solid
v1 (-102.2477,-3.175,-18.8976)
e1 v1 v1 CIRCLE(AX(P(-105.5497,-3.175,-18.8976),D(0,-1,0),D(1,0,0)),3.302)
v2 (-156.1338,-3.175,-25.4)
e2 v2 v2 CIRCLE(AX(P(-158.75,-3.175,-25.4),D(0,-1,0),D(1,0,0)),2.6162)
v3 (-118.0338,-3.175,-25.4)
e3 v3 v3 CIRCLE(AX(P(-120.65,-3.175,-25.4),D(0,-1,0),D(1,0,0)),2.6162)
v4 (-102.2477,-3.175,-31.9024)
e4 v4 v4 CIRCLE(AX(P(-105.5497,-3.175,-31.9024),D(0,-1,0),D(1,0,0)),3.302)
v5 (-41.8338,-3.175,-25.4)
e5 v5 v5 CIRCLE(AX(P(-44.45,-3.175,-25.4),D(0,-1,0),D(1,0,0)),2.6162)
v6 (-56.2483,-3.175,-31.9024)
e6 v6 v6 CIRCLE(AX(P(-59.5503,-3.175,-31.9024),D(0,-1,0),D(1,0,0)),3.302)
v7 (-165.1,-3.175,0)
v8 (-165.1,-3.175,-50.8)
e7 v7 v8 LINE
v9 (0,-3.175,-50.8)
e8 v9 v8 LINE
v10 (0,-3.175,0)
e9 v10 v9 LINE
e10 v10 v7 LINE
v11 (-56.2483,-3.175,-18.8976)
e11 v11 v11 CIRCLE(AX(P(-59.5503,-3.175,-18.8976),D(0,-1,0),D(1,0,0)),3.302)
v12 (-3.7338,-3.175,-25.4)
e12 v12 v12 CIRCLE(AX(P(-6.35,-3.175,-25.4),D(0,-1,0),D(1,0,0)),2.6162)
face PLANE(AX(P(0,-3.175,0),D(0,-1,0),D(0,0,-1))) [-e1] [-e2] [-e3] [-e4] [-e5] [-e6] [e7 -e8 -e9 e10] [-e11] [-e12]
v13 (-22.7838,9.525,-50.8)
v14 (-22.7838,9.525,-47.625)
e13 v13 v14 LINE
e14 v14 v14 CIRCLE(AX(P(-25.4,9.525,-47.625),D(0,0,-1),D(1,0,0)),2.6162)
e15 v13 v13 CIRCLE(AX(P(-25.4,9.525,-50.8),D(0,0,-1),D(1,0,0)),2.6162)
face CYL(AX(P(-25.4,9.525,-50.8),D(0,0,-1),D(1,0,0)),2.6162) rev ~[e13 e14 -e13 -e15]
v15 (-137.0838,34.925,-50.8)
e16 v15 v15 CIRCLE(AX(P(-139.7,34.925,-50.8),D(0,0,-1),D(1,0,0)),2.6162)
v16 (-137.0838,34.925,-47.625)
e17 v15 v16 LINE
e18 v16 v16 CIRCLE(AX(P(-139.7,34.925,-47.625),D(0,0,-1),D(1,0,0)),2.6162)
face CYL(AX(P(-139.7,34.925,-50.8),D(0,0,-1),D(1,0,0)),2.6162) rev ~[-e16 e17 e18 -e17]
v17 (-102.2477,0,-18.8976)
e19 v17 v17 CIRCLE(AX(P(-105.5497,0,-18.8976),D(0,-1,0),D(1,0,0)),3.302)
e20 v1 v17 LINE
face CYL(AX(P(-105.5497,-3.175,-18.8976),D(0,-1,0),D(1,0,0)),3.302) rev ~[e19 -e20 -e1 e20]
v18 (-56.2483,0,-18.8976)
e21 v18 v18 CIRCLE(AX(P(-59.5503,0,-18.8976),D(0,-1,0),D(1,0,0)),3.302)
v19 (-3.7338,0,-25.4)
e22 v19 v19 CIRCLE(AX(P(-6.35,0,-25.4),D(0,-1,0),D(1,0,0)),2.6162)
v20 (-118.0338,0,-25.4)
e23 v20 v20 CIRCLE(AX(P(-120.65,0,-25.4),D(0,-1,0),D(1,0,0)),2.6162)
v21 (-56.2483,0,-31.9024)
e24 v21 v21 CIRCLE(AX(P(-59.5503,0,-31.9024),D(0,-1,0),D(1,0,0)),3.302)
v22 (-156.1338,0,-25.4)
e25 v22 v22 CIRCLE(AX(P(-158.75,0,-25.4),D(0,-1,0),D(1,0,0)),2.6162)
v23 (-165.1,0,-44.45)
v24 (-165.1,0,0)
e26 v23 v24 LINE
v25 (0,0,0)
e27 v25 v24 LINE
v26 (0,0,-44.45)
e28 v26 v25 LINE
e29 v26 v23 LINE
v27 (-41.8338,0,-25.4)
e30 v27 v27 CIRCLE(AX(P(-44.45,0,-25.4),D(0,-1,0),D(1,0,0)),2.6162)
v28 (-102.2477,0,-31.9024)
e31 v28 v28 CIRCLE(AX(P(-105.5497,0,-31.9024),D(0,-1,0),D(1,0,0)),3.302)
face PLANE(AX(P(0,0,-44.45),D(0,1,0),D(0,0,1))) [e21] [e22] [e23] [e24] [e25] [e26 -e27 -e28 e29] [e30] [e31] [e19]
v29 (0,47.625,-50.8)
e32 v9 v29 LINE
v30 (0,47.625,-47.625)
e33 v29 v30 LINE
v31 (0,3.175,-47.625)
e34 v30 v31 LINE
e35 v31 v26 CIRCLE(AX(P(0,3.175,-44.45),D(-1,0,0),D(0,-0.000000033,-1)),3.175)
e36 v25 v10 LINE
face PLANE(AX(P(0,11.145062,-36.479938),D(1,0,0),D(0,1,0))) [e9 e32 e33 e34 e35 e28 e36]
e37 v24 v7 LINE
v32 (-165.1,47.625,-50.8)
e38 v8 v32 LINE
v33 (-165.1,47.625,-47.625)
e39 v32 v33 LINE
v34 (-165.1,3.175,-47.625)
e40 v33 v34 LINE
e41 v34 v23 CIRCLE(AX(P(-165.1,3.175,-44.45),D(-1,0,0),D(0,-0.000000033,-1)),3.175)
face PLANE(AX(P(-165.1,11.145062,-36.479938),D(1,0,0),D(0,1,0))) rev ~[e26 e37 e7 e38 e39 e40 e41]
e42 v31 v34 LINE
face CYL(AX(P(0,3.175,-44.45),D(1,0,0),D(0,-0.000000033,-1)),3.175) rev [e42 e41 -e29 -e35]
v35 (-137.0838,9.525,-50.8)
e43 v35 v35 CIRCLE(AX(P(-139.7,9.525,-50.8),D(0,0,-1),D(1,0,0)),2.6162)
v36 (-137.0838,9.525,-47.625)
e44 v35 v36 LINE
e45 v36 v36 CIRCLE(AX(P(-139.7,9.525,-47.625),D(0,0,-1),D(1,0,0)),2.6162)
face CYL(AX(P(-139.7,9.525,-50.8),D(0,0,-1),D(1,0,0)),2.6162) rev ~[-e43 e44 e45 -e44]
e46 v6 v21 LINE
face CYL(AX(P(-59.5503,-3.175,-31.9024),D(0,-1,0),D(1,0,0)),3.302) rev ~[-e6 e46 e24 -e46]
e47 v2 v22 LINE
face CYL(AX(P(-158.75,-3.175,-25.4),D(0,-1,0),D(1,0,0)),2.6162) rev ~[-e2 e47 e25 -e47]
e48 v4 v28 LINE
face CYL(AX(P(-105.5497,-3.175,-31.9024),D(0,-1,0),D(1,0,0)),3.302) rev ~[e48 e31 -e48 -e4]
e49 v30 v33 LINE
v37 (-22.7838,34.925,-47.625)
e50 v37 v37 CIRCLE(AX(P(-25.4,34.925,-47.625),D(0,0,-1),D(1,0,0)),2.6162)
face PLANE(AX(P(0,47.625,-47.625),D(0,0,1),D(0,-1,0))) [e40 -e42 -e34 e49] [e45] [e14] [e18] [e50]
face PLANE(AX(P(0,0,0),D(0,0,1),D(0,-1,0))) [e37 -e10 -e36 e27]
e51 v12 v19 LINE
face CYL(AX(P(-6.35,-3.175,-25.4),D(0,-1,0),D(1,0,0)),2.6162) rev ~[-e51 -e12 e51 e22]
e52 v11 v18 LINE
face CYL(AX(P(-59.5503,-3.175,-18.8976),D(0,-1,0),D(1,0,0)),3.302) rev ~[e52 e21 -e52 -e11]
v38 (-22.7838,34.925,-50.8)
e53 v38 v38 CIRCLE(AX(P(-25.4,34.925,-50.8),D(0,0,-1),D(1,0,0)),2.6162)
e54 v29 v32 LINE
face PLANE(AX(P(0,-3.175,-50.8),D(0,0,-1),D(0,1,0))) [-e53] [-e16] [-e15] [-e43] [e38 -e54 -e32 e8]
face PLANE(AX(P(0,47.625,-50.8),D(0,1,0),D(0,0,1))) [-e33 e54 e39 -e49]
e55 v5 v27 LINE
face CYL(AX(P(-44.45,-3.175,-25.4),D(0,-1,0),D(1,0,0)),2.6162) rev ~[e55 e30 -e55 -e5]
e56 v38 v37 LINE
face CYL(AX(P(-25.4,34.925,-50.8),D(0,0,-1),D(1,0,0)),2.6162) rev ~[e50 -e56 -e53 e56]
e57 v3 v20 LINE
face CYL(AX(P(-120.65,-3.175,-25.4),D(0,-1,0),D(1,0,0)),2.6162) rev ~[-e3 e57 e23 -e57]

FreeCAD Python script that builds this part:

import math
import FreeCAD as App
import Part
import Sketcher
from FreeCAD import Vector
Q = App.Units.Quantity

doc = App.newDocument("Part")
params = doc.addObject("Spreadsheet::Sheet", "Params")
for row, (alias, value) in enumerate([
    ("sketch1_width", "2 in"),
    ("sketch1_radius", "0.125 in"),
    ("sketch1_width2", "1.75 in"),
    ("pad1_length", "6.5 in"),
    ("sketch2_diameter", "0.26 in"),
    ("sketch2_diameter2", "0.206 in"),
    ("sketch3_diameter", "0.206 in"),
    ("pocket2_length", "1 in"),
], start=1):
    params.set(f"A{row}", alias)
    params.set(f"B{row}", "=" + value)
    params.setAlias(f"B{row}", alias)

body = doc.addObject("PartDesign::Body", "Body")

# Sketch on YZ plane
sketch1 = body.newObject("Sketcher::SketchObject", "Sketch")
sketch1.AttachmentSupport = (doc.getObject("YZ_Plane"), [""])
sketch1.MapMode = "FlatFace"
sketch1.addGeometry([
    Part.LineSegment(Vector(0, -44.45, 0), Vector(0, 0, 0)),  # 0
    Part.LineSegment(Vector(0, 0, 0), Vector(-3.175, 0, 0)),  # 1
    Part.LineSegment(Vector(-3.175, 0, 0), Vector(-3.175, -50.8, 0)),  # 2
    Part.LineSegment(Vector(-3.175, -50.8, 0), Vector(47.625, -50.8, 0)),  # 3
    Part.LineSegment(Vector(47.625, -50.8, 0), Vector(47.625, -47.625, 0)),  # 4
    Part.LineSegment(Vector(47.625, -47.625, 0), Vector(3.175, -47.625, 0)),  # 5
    Part.ArcOfCircle(Part.Circle(Vector(3.175, -44.45, 0), Vector(0, 0, 1), 3.175), math.radians(-179.999998), math.radians(-90.000002)),  # 6
], False)
sketch1.addConstraint([
    Sketcher.Constraint("Coincident", 0, 2, 1, 1),
    Sketcher.Constraint("Coincident", 1, 2, 2, 1),
    Sketcher.Constraint("Coincident", 2, 2, 3, 1),
    Sketcher.Constraint("Coincident", 3, 2, 4, 1),
    Sketcher.Constraint("Coincident", 4, 2, 5, 1),
    Sketcher.Constraint("Tangent", 5, 2, 6, 2),
    Sketcher.Constraint("Tangent", 6, 1, 0, 1),
    Sketcher.Constraint("Vertical", 0),
    Sketcher.Constraint("Horizontal", 1),
    Sketcher.Constraint("Vertical", 2),
    Sketcher.Constraint("Horizontal", 3),
    Sketcher.Constraint("Vertical", 4),
    Sketcher.Constraint("Horizontal", 5),
    Sketcher.Constraint("Coincident", 0, 2, -1, 1),
    Sketcher.Constraint("Equal", 5, 0),
    Sketcher.Constraint("Equal", 3, 2),
    Sketcher.Constraint("DistanceX", 3, 1, 3, 2, Q("2 in")),
    Sketcher.Constraint("Radius", 6, Q("0.125 in")),
    Sketcher.Constraint("DistanceX", 5, 2, 5, 1, Q("1.75 in")),
])
sketch1.setExpression("Constraints[16]", "Params.sketch1_width")
sketch1.setExpression("Constraints[17]", "Params.sketch1_radius")
sketch1.setExpression("Constraints[18]", "Params.sketch1_width2")
pad1 = body.newObject("PartDesign::Pad", "Pad")
pad1.Profile = sketch1
pad1.setExpression("Length", "Params.pad1_length")
pad1.Reversed = True

# Sketch on XZ plane
sketch2 = body.newObject("Sketcher::SketchObject", "Sketch001")
sketch2.AttachmentSupport = (doc.getObject("XZ_Plane"), [""])
sketch2.MapMode = "FlatFace"
sketch2.AttachmentOffset = App.Placement(Vector(0, 0, 0.125 * 25.4), App.Rotation())
sketch2.addGeometry([
    Part.Circle(Vector(-158.75, -25.4, 0), Vector(0, 0, 1), 2.6162),  # 0
    Part.Circle(Vector(-120.65, -25.4, 0), Vector(0, 0, 1), 2.6162),  # 1
    Part.Circle(Vector(-44.45, -25.4, 0), Vector(0, 0, 1), 2.6162),  # 2
    Part.Circle(Vector(-6.35, -25.4, 0), Vector(0, 0, 1), 2.6162),  # 3
    Part.Circle(Vector(-59.5503, -31.9024, 0), Vector(0, 0, 1), 3.302),  # 4
    Part.Circle(Vector(-105.5497, -31.9024, 0), Vector(0, 0, 1), 3.302),  # 5
    Part.Circle(Vector(-59.5503, -18.8976, 0), Vector(0, 0, 1), 3.302),  # 6
    Part.Circle(Vector(-105.5497, -18.8976, 0), Vector(0, 0, 1), 3.302),  # 7
], False)
sketch2.addConstraint([
    Sketcher.Constraint("Equal", 0, 1),
    Sketcher.Constraint("Equal", 1, 2),
    Sketcher.Constraint("Equal", 2, 3),
    Sketcher.Constraint("Equal", 4, 5),
    Sketcher.Constraint("Equal", 5, 6),
    Sketcher.Constraint("Equal", 6, 7),
    Sketcher.Constraint("Horizontal", 0, 3, 1, 3),
    Sketcher.Constraint("Horizontal", 1, 3, 2, 3),
    Sketcher.Constraint("Horizontal", 2, 3, 3, 3),
    Sketcher.Constraint("Horizontal", 4, 3, 5, 3),
    Sketcher.Constraint("Horizontal", 6, 3, 7, 3),
    Sketcher.Constraint("Vertical", 4, 3, 6, 3),
    Sketcher.Constraint("Vertical", 5, 3, 7, 3),
    Sketcher.Constraint("Diameter", 4, Q("0.26 in")),
    Sketcher.Constraint("Diameter", 0, Q("0.206 in")),
    Sketcher.Constraint("DistanceY", 0, 3, -1, 1, Q("1 in")),
    Sketcher.Constraint("DistanceX", 1, 3, 2, 3, Q("3 in")),
    Sketcher.Constraint("DistanceX", 0, 3, 3, 3, Q("6 in")),
    Sketcher.Constraint("DistanceX", 0, 3, 1, 3, Q("1.5 in")),
    Sketcher.Constraint("DistanceX", 0, 3, -1, 1, Q("6.25 in")),
    Sketcher.Constraint("DistanceY", 4, 3, -1, 1, Q("1.256 in")),
    Sketcher.Constraint("DistanceY", 6, 3, -1, 1, Q("0.744 in")),
    Sketcher.Constraint("DistanceX", 5, 3, 4, 3, Q("1.811 in")),
    Sketcher.Constraint("DistanceX", 4, 3, -1, 1, Q("2.3445 in")),
])
sketch2.setExpression("Constraints[13]", "Params.sketch2_diameter")
sketch2.setExpression("Constraints[14]", "Params.sketch2_diameter2")
pocket1 = body.newObject("PartDesign::Pocket", "Pocket")
pocket1.Profile = sketch2
pocket1.Type = "ThroughAll"

# Sketch on XY plane
sketch3 = body.newObject("Sketcher::SketchObject", "Sketch002")
sketch3.AttachmentSupport = (doc.getObject("XY_Plane"), [""])
sketch3.MapMode = "FlatFace"
sketch3.AttachmentOffset = App.Placement(Vector(0, 0, -2 * 25.4), App.Rotation())
sketch3.addGeometry([
    Part.Circle(Vector(-25.4, 34.925, 0), Vector(0, 0, 1), 2.6162),
    Part.Circle(Vector(-25.4, 9.525, 0), Vector(0, 0, 1), 2.6162),
    Part.Circle(Vector(-139.7, 34.925, 0), Vector(0, 0, 1), 2.6162),
    Part.Circle(Vector(-139.7, 9.525, 0), Vector(0, 0, 1), 2.6162),
], False)
sketch3.addConstraint([
    Sketcher.Constraint("Equal", 0, 1),
    Sketcher.Constraint("Equal", 1, 2),
    Sketcher.Constraint("Equal", 2, 3),
    Sketcher.Constraint("Horizontal", 0, 3, 2, 3),
    Sketcher.Constraint("Horizontal", 1, 3, 3, 3),
    Sketcher.Constraint("Vertical", 0, 3, 1, 3),
    Sketcher.Constraint("Vertical", 2, 3, 3, 3),
    Sketcher.Constraint("Diameter", 0, Q("0.206 in")),
    Sketcher.Constraint("DistanceX", 0, 3, -1, 1, Q("1 in")),
    Sketcher.Constraint("DistanceY", 1, 3, 0, 3, Q("1 in")),
    Sketcher.Constraint("DistanceX", 2, 3, -1, 1, Q("5.5 in")),
    Sketcher.Constraint("DistanceY", -1, 1, 0, 3, Q("1.375 in")),
])
sketch3.setExpression("Constraints[7]", "Params.sketch3_diameter")
pocket2 = body.newObject("PartDesign::Pocket", "Pocket001")
pocket2.Profile = sketch3
pocket2.setExpression("Length", "Params.pocket2_length")
pocket2.Reversed = True

doc.recompute()
